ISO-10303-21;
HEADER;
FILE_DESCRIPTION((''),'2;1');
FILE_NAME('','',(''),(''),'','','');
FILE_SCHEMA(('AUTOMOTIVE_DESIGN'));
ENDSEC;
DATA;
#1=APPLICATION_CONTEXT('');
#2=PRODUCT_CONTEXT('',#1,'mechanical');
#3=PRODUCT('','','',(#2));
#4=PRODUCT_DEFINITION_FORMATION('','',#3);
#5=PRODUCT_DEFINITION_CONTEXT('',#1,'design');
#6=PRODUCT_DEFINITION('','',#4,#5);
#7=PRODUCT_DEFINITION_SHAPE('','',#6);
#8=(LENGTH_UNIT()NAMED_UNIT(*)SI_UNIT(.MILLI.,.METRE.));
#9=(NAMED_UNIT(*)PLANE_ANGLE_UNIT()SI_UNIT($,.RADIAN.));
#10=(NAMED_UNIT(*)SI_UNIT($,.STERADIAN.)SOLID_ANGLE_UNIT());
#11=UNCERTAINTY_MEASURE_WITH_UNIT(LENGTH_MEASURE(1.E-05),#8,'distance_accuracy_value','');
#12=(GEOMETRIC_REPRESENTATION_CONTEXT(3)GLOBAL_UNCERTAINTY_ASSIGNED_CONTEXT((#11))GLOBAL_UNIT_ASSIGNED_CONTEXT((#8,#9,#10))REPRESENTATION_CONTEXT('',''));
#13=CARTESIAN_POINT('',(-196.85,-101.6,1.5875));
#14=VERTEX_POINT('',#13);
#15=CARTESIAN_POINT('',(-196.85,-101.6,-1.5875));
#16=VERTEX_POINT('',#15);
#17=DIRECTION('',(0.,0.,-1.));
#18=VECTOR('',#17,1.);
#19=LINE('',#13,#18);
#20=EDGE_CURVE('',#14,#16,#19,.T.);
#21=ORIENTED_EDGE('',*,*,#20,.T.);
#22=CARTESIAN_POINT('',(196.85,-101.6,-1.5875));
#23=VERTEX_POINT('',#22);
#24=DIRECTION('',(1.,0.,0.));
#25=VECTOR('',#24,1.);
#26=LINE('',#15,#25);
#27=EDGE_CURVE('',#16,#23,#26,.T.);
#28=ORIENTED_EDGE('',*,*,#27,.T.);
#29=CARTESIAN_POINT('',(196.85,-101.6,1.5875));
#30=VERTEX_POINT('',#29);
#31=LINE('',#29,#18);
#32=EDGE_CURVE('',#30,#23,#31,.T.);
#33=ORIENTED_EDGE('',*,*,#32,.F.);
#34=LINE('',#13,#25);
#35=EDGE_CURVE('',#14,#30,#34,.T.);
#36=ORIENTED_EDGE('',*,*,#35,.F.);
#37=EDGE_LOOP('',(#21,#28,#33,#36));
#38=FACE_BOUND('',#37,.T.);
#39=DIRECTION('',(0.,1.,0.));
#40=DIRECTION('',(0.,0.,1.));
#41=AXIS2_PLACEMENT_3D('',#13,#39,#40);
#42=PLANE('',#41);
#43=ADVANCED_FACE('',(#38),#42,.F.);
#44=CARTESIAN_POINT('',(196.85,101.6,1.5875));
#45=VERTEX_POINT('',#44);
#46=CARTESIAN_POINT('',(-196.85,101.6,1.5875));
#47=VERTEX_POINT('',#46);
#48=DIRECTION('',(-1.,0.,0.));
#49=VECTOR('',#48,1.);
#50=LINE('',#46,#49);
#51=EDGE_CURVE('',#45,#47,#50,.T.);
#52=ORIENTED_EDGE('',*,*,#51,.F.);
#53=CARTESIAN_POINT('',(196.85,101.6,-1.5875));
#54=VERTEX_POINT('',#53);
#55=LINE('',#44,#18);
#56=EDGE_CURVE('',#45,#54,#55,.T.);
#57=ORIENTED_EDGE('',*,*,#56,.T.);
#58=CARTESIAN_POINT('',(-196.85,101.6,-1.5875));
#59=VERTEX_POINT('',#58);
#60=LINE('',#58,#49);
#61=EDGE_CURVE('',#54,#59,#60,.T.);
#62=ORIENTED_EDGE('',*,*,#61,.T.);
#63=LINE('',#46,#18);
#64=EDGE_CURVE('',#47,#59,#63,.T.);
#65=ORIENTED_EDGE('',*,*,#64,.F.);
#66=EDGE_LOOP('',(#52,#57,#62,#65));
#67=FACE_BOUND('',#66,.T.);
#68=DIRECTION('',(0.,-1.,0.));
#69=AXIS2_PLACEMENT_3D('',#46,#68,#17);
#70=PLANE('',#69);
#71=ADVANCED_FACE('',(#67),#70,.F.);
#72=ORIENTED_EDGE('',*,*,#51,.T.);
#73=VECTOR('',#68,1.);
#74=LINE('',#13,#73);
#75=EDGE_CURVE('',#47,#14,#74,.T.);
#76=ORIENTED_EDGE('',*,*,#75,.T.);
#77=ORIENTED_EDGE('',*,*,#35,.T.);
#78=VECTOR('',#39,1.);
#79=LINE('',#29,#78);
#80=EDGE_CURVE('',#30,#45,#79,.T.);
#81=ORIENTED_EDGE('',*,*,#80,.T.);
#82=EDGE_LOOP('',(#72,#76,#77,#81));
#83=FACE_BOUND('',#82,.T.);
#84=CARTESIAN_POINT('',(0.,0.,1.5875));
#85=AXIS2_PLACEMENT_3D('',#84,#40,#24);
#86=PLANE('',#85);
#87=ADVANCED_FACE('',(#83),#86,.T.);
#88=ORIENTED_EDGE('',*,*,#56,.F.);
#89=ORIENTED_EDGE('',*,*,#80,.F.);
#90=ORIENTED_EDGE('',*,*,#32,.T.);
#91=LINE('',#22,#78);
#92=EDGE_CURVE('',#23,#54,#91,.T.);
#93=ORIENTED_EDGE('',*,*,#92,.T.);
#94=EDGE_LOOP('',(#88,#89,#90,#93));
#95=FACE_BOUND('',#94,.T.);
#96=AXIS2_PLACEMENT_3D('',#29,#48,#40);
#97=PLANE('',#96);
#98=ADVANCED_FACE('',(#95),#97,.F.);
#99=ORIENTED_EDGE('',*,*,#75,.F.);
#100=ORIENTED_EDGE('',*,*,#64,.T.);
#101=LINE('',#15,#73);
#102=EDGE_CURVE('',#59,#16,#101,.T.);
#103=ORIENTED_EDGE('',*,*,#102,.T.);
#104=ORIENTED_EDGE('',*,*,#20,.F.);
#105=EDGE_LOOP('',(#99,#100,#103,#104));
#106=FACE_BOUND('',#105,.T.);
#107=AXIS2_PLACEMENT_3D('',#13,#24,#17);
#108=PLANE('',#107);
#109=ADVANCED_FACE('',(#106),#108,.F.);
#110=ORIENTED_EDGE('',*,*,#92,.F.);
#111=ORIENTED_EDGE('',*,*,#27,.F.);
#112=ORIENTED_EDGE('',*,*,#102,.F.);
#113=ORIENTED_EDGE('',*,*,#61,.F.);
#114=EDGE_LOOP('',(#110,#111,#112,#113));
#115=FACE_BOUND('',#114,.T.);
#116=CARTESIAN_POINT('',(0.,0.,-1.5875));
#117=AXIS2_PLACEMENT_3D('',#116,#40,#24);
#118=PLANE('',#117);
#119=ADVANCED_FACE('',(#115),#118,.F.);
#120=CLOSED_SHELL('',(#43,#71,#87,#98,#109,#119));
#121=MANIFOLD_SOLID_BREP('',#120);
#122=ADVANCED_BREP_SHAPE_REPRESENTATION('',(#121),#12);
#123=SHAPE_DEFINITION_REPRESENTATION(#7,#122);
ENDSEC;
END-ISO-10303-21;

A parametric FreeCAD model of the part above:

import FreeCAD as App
import Part
import Sketcher
from FreeCAD import Vector
Q = App.Units.Quantity

doc = App.newDocument("Part")
body = doc.addObject("PartDesign::Body", "Body")

# Sketch on XY plane
sketch1 = body.newObject("Sketcher::SketchObject", "Sketch")
sketch1.AttachmentSupport = (doc.getObject("XY_Plane"), [""])
sketch1.MapMode = "FlatFace"
sketch1.addGeometry(Part.LineSegment(Vector(-197, 102, 0), Vector(-197, -102, 0)), False)
sketch1.addGeometry(Part.LineSegment(Vector(-197, -102, 0), Vector(197, -102, 0)), False)
sketch1.addGeometry(Part.LineSegment(Vector(197, -102, 0), Vector(197, 102, 0)), False)
sketch1.addGeometry(Part.LineSegment(Vector(197, 102, 0), Vector(-197, 102, 0)), False)
sketch1.addConstraint(Sketcher.Constraint("Coincident", 0, 2, 1, 1))
sketch1.addConstraint(Sketcher.Constraint("Coincident", 1, 2, 2, 1))
sketch1.addConstraint(Sketcher.Constraint("Coincident", 2, 2, 3, 1))
sketch1.addConstraint(Sketcher.Constraint("Coincident", 3, 2, 0, 1))
sketch1.addConstraint(Sketcher.Constraint("Vertical", 0))
sketch1.addConstraint(Sketcher.Constraint("Horizontal", 1))
sketch1.addConstraint(Sketcher.Constraint("Vertical", 2))
sketch1.addConstraint(Sketcher.Constraint("Horizontal", 3))
sketch1.addConstraint(Sketcher.Constraint("Symmetric", 0, 2, 2, 2, -1, 1))
sketch1.addConstraint(Sketcher.Constraint("DistanceY", 0, 2, 0, 1, Q("8 in")))
sketch1.addConstraint(Sketcher.Constraint("DistanceX", 1, 1, 1, 2, Q("15.5 in")))
pad1 = body.newObject("PartDesign::Pad", "Pad")
pad1.Profile = sketch1
pad1.Length = Q("0.125 in")
pad1.Midplane = True

doc.recompute()
